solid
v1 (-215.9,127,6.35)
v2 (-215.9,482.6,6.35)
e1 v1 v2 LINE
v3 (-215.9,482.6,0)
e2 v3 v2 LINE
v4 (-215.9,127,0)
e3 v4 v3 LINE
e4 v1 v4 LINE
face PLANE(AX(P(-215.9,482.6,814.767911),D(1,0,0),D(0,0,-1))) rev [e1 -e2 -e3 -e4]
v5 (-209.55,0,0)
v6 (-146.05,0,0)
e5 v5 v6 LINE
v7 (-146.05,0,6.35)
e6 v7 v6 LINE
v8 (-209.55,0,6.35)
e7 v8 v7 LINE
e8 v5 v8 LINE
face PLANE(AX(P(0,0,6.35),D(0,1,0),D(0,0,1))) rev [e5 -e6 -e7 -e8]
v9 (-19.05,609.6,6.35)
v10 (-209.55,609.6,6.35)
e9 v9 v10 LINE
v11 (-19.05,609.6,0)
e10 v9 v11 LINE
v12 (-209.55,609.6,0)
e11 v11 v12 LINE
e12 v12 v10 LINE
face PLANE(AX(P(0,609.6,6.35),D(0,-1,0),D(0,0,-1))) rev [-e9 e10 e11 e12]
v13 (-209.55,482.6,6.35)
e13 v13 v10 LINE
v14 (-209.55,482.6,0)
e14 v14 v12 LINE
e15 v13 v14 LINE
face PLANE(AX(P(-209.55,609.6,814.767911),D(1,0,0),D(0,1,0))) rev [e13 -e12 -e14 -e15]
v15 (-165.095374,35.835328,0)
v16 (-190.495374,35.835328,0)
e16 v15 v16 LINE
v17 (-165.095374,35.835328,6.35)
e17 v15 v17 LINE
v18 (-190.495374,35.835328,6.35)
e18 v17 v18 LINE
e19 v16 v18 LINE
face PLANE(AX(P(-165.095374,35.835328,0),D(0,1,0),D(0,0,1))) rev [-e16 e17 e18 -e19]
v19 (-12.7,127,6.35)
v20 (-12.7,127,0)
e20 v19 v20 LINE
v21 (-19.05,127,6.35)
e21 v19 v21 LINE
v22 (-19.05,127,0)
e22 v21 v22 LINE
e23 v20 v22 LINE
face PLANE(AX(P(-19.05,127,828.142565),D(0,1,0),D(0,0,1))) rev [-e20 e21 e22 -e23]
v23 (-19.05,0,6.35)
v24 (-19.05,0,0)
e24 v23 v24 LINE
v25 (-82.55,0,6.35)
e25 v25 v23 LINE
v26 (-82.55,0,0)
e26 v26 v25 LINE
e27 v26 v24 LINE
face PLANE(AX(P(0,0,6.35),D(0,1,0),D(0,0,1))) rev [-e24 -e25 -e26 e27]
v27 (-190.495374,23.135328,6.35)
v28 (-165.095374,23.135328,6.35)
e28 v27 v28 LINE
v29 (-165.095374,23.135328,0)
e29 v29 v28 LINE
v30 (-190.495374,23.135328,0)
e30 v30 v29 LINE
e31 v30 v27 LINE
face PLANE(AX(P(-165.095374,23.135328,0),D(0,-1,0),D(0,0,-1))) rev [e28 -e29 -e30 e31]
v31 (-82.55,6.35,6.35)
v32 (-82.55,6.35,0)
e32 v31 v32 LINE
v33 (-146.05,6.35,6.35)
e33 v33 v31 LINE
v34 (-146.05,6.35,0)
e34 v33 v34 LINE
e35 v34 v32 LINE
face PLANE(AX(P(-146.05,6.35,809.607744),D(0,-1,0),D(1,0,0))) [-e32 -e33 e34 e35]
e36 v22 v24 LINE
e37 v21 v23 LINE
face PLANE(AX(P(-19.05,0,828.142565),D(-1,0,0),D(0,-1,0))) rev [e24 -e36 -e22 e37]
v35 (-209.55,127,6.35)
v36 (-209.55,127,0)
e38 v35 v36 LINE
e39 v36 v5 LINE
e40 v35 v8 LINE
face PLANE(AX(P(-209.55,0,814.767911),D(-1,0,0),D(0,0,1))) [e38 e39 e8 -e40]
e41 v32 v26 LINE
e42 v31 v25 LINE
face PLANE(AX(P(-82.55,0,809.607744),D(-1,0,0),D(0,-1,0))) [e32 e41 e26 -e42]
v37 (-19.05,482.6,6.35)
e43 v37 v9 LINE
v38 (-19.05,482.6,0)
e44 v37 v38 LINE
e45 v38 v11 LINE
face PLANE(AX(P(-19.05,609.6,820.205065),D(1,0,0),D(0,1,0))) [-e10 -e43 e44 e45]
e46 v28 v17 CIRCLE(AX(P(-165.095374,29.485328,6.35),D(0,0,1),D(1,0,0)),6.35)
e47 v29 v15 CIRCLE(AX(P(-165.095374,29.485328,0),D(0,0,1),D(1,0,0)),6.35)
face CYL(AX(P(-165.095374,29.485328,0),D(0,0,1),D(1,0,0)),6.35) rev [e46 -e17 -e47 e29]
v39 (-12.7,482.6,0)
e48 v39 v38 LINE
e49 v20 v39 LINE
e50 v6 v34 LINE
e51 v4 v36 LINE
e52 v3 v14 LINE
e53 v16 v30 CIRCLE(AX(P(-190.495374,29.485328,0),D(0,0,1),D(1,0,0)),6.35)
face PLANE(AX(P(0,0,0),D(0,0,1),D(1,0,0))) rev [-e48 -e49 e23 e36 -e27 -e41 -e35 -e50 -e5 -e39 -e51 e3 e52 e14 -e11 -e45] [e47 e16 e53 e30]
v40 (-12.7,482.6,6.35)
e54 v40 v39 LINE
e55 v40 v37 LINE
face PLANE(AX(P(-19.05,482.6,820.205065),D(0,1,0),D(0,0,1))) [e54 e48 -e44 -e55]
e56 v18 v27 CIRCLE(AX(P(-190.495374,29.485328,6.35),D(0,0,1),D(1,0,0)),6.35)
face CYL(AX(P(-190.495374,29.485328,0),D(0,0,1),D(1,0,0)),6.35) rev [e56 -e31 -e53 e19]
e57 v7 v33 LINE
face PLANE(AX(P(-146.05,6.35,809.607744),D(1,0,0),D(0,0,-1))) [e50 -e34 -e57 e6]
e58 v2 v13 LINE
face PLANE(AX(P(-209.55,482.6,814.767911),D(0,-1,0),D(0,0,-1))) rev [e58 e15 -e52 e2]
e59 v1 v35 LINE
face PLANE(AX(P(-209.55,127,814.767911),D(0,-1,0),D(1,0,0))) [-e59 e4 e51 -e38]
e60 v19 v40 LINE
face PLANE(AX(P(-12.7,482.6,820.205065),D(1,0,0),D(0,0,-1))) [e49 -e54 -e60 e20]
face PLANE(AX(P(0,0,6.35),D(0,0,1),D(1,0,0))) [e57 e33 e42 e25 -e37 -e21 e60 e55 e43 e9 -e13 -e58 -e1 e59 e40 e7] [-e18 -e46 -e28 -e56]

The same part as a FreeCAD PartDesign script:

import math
import FreeCAD as App
import Part
import Sketcher
Q = App.Units.Quantity


def add_polygon(sketch, points):
    """Adds a closed chain of lines whose ends are joined by coincident constraints."""
    first, n = sketch.GeometryCount, len(points)
    for a, b in zip(points, points[1:] + points[:1]):
        sketch.addGeometry(Part.LineSegment(App.Vector(*a, 0), App.Vector(*b, 0)), False)
    for i in range(n):
        sketch.addConstraint(Sketcher.Constraint("Coincident", first + i, 2, first + (i + 1) % n, 1))

doc = App.newDocument("Part")
body = doc.addObject("PartDesign::Body", "Body")

sketch1 = doc.addObject("Sketcher::SketchObject", "Sketch")
body.addObject(sketch1)
sketch1.AttachmentSupport = (doc.XY_Plane, [""])
sketch1.MapMode = "FlatFace"
add_polygon(sketch1, [(-229, 610), (-229, 0), (0, 0), (0, 610)])
sketch1.addConstraint([
    Sketcher.Constraint("Vertical", 0),
    Sketcher.Constraint("Horizontal", 1),
    Sketcher.Constraint("Vertical", 2),
    Sketcher.Constraint("Horizontal", 3),
    Sketcher.Constraint("Coincident", 1, 2, -1, 1),
    Sketcher.Constraint("DistanceX", 1, 1, 1, 2, Q("9 in")),
    Sketcher.Constraint("DistanceY", 0, 2, 0, 1, Q("24 in")),
])
pad1 = doc.addObject("PartDesign::Pad", "Pad")
body.addObject(pad1)
pad1.Profile = sketch1
pad1.Length = Q("0.25 in")

sketch2 = doc.addObject("Sketcher::SketchObject", "Sketch001")
body.addObject(sketch2)
sketch2.AttachmentSupport = (doc.XY_Plane, [""])
sketch2.MapMode = "FlatFace"
sketch2.AttachmentOffset = App.Placement(App.Vector(0, 0, 0.25 * 25.4), App.Rotation())
sketch2.addGeometry([
    Part.LineSegment(App.Vector(-190, 23, 0), App.Vector(-165, 23, 0)),
    Part.ArcOfCircle(Part.Circle(App.Vector(-165, 29, 0), App.Vector(0, 0, 1), 6), math.radians(-90), math.radians(90)),
    Part.LineSegment(App.Vector(-165, 36, 0), App.Vector(-190, 36, 0)),
    Part.ArcOfCircle(Part.Circle(App.Vector(-190, 29, 0), App.Vector(0, 0, 1), 6), math.radians(90), math.radians(270)),
], False)
sketch2.addConstraint([
    Sketcher.Constraint("Tangent", 0, 2, 1, 1),
    Sketcher.Constraint("Tangent", 1, 2, 2, 1),
    Sketcher.Constraint("Tangent", 2, 2, 3, 1),
    Sketcher.Constraint("Tangent", 3, 2, 0, 1),
    Sketcher.Constraint("Horizontal", 0),
    Sketcher.Constraint("Horizontal", 2),
    Sketcher.Constraint("DistanceX", 0, 1, 0, 2, Q("1 in")),
    Sketcher.Constraint("Radius", 1, Q("0.25 in")),
    Sketcher.Constraint("DistanceX", 1, 3, -1, 1, Q("165.095374 mm")),
    Sketcher.Constraint("DistanceY", -1, 1, 1, 3, Q("29.485328 mm")),
])
pocket1 = doc.addObject("PartDesign::Pocket", "Pocket")
body.addObject(pocket1)
pocket1.Profile = sketch2
pocket1.Length = Q("0.25 in")

sketch3 = doc.addObject("Sketcher::SketchObject", "Sketch002")
body.addObject(sketch3)
sketch3.AttachmentSupport = (doc.XY_Plane, [""])
sketch3.MapMode = "FlatFace"
sketch3.AttachmentOffset = App.Placement(App.Vector(0, 0, 0.25 * 25.4), App.Rotation())
add_polygon(sketch3, [(-19, 127), (-19, -1299), (1889, -3063), (3207, -1637), (1299, 127)])
sketch3.addConstraint([
    Sketcher.Constraint("Vertical", 0),
    Sketcher.Constraint("Horizontal", 4),
    Sketcher.Constraint("Perpendicular", 1, 2),
    Sketcher.Constraint("Perpendicular", 2, 3),
    Sketcher.Constraint("Equal", 1, 3),
    Sketcher.Constraint("DistanceY", -1, 1, 3, 2, Q("5 in")),
    Sketcher.Constraint("DistanceX", 0, 2, -1, 1, Q("0.75 in")),
    Sketcher.Constraint("DistanceX", 4, 2, 4, 1, Q("1318.272033 mm")),
    Sketcher.Constraint("DistanceY", 0, 2, 0, 1, Q("1426.222033 mm")),
    Sketcher.Constraint("DistanceX", -1, 1, 2, 2, Q("3207.39406 mm")),
])
pocket2 = doc.addObject("PartDesign::Pocket", "Pocket001")
body.addObject(pocket2)
pocket2.Profile = sketch3
pocket2.Type = "ThroughAll"
pocket2.Midplane = True

sketch4 = doc.addObject("Sketcher::SketchObject", "Sketch003")
body.addObject(sketch4)
sketch4.AttachmentSupport = (doc.XY_Plane, [""])
sketch4.MapMode = "FlatFace"
sketch4.AttachmentOffset = App.Placement(App.Vector(0, 0, 0.25 * 25.4), App.Rotation())
add_polygon(sketch4, [(-19, 1909), (-19, 483), (1299, 483), (3207, 2246), (1889, 3673)])
sketch4.addConstraint([
    Sketcher.Constraint("Vertical", 0),
    Sketcher.Constraint("Horizontal", 1),
    Sketcher.Constraint("Perpendicular", 2, 3),
    Sketcher.Constraint("Perpendicular", 3, 4),
    Sketcher.Constraint("Equal", 2, 4),
    Sketcher.Constraint("DistanceY", -1, 1, 0, 2, Q("19 in")),
    Sketcher.Constraint("DistanceX", 0, 2, -1, 1, Q("0.75 in")),
    Sketcher.Constraint("DistanceX", 1, 1, 1, 2, Q("1318.272033 mm")),
    Sketcher.Constraint("DistanceY", 0, 2, 0, 1, Q("1426.222033 mm")),
    Sketcher.Constraint("DistanceX", -1, 1, 2, 2, Q("3207.39406 mm")),
])
pocket3 = doc.addObject("PartDesign::Pocket", "Pocket002")
body.addObject(pocket3)
pocket3.Profile = sketch4
pocket3.Type = "ThroughAll"
pocket3.Midplane = True

sketch5 = doc.addObject("Sketcher::SketchObject", "Sketch004")
body.addObject(sketch5)
sketch5.AttachmentSupport = (doc.XY_Plane, [""])
sketch5.MapMode = "FlatFace"
sketch5.AttachmentOffset = App.Placement(App.Vector(0, 0, 0.25 * 25.4), App.Rotation())
add_polygon(sketch5, [(-13, 1550), (-13, -940), (2122, -940), (2122, 1550)])
sketch5.addConstraint([
    Sketcher.Constraint("Vertical", 0),
    Sketcher.Constraint("Horizontal", 1),
    Sketcher.Constraint("Vertical", 2),
    Sketcher.Constraint("Horizontal", 3),
    Sketcher.Constraint("DistanceX", 0, 2, -1, 1, Q("0.5 in")),
    Sketcher.Constraint("DistanceX", 1, 1, 1, 2, Q("2134.769283 mm")),
    Sketcher.Constraint("DistanceY", 0, 2, 0, 1, Q("2490.369283 mm")),
    Sketcher.Constraint("DistanceY", 0, 2, -1, 1, Q("940.384641 mm")),
])
pocket4 = doc.addObject("PartDesign::Pocket", "Pocket003")
body.addObject(pocket4)
pocket4.Profile = sketch5
pocket4.Type = "ThroughAll"
pocket4.Midplane = True

sketch6 = doc.addObject("Sketcher::SketchObject", "Sketch005")
body.addObject(sketch6)
sketch6.AttachmentSupport = (doc.XY_Plane, [""])
sketch6.MapMode = "FlatFace"
sketch6.AttachmentOffset = App.Placement(App.Vector(0, 0, 0.25 * 25.4), App.Rotation())
add_polygon(sketch6, [(-210, -1291), (-210, 127), (-1520, 127), (-3417, -1625), (-2106, -3044)])
sketch6.addConstraint([
    Sketcher.Constraint("Vertical", 0),
    Sketcher.Constraint("Horizontal", 1),
    Sketcher.Constraint("Perpendicular", 2, 3),
    Sketcher.Constraint("Perpendicular", 3, 4),
    Sketcher.Constraint("Equal", 2, 4),
    Sketcher.Constraint("DistanceY", -1, 1, 0, 2, Q("5 in")),
    Sketcher.Constraint("DistanceX", 0, 2, -1, 1, Q("8.25 in")),
    Sketcher.Constraint("DistanceX", 1, 2, 1, 1, Q("1310.240201 mm")),
    Sketcher.Constraint("DistanceY", 0, 1, 0, 2, Q("1418.190201 mm")),
    Sketcher.Constraint("Distance", 2, Q("2582.380401 mm")),
])
pocket5 = doc.addObject("PartDesign::Pocket", "Pocket004")
body.addObject(pocket5)
pocket5.Profile = sketch6
pocket5.Type = "ThroughAll"
pocket5.Midplane = True

sketch7 = doc.addObject("Sketcher::SketchObject", "Sketch006")
body.addObject(sketch7)
sketch7.AttachmentSupport = (doc.XY_Plane, [""])
sketch7.MapMode = "FlatFace"
sketch7.AttachmentOffset = App.Placement(App.Vector(0, 0, 0.25 * 25.4), App.Rotation())
add_polygon(sketch7, [(-210, 483), (-210, 1901), (-2106, 3653), (-3417, 2235), (-1520, 483)])
sketch7.addConstraint([
    Sketcher.Constraint("Vertical", 0),
    Sketcher.Constraint("Horizontal", 4),
    Sketcher.Constraint("Perpendicular", 1, 2),
    Sketcher.Constraint("Perpendicular", 2, 3),
    Sketcher.Constraint("Equal", 1, 3),
    Sketcher.Constraint("DistanceY", -1, 1, 3, 2, Q("19 in")),
    Sketcher.Constraint("DistanceX", 0, 2, -1, 1, Q("8.25 in")),
    Sketcher.Constraint("DistanceX", 4, 1, 4, 2, Q("1310.240201 mm")),
    Sketcher.Constraint("DistanceY", 0, 1, 0, 2, Q("1418.190201 mm")),
    Sketcher.Constraint("Distance", 1, Q("2582.380401 mm")),
])
pocket6 = doc.addObject("PartDesign::Pocket", "Pocket005")
body.addObject(pocket6)
pocket6.Profile = sketch7
pocket6.Type = "ThroughAll"
pocket6.Midplane = True

sketch8 = doc.addObject("Sketcher::SketchObject", "Sketch007")
body.addObject(sketch8)
sketch8.AttachmentSupport = (doc.XY_Plane, [""])
sketch8.MapMode = "FlatFace"
sketch8.AttachmentOffset = App.Placement(App.Vector(0, 0, 0.25 * 25.4), App.Rotation())
add_polygon(sketch8, [(-216, -930), (-216, 1540), (-2330, 1540), (-2330, -930)])
sketch8.addConstraint([
    Sketcher.Constraint("Vertical", 0),
    Sketcher.Constraint("Horizontal", 1),
    Sketcher.Constraint("Vertical", 2),
    Sketcher.Constraint("Horizontal", 3),
    Sketcher.Constraint("DistanceX", 0, 2, -1, 1, Q("8.5 in")),
    Sketcher.Constraint("DistanceX", 1, 2, 1, 1, Q("2114.537658 mm")),
    Sketcher.Constraint("DistanceY", 0, 1, 0, 2, Q("2470.137658 mm")),
    Sketcher.Constraint("DistanceY", -1, 1, 0, 2, Q("1539.868829 mm")),
])
pocket7 = doc.addObject("PartDesign::Pocket", "Pocket006")
body.addObject(pocket7)
pocket7.Profile = sketch8
pocket7.Type = "ThroughAll"
pocket7.Midplane = True

sketch9 = doc.addObject("Sketcher::SketchObject", "Sketch008")
body.addObject(sketch9)
sketch9.AttachmentSupport = (doc.XY_Plane, [""])
sketch9.MapMode = "FlatFace"
sketch9.AttachmentOffset = App.Placement(App.Vector(0, 0, 0.25 * 25.4), App.Rotation())
add_polygon(sketch9, [(-83, 6), (-146, 6), (-146, -3774), (-83, -3774)])
sketch9.addConstraint([
    Sketcher.Constraint("Horizontal", 0),
    Sketcher.Constraint("Vertical", 1),
    Sketcher.Constraint("Horizontal", 2),
    Sketcher.Constraint("Vertical", 3),
    Sketcher.Constraint("DistanceX", 0, 2, 0, 1, Q("2.5 in")),
    Sketcher.Constraint("DistanceX", 0, 2, -1, 1, Q("5.75 in")),
    Sketcher.Constraint("DistanceY", -1, 1, 0, 2, Q("0.25 in")),
    Sketcher.Constraint("DistanceY", 1, 2, 1, 1, Q("3780.438376 mm")),
])
pocket8 = doc.addObject("PartDesign::Pocket", "Pocket007")
body.addObject(pocket8)
pocket8.Profile = sketch9
pocket8.Type = "ThroughAll"
pocket8.Midplane = True

doc.recompute()
